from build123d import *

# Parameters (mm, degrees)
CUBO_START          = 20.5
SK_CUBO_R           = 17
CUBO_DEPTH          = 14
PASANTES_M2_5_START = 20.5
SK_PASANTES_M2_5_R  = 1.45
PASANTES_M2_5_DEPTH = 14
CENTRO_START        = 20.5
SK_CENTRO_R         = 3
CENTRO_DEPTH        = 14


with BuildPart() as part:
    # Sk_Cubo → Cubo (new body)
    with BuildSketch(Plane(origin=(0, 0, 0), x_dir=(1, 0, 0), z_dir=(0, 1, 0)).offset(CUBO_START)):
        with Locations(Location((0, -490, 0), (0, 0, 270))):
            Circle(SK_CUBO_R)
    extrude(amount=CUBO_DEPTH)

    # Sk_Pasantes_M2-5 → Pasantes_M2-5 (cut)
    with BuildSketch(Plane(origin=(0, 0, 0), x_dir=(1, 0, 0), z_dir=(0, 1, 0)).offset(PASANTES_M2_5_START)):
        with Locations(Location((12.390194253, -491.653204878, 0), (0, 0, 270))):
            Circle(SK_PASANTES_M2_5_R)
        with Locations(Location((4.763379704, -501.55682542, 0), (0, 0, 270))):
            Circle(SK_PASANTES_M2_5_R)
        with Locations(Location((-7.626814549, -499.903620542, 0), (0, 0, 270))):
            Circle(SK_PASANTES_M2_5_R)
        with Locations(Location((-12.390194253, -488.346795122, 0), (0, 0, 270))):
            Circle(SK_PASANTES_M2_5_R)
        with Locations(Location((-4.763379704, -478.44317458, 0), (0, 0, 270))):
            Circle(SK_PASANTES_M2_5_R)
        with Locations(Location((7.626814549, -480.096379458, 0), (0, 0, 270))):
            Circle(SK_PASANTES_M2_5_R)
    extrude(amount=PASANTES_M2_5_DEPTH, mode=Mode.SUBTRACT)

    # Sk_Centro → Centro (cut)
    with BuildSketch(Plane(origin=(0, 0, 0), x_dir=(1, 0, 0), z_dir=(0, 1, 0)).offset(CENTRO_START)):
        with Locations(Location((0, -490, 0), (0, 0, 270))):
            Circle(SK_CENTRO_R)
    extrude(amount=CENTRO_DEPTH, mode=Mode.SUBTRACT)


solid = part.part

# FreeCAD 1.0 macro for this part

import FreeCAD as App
import Part
import Sketcher
Q = App.Units.Quantity

doc = App.newDocument("Part")
params = doc.addObject("Spreadsheet::Sheet", "Params")
for row, (alias, value) in enumerate([
    ("sketch1_diameter", "34 mm"),
    ("pad1_length", "14 mm"),
    ("sketch2_diameter", "2.9 mm"),
    ("pocket1_length", "14 mm"),
    ("sketch3_diameter", "6 mm"),
    ("pocket2_length", "14 mm"),
], start=1):
    params.set(f"A{row}", alias)
    params.set(f"B{row}", "=" + value)
    params.setAlias(f"B{row}", alias)

body = doc.addObject("PartDesign::Body", "Body")

# Sketch on XZ plane
sketch1 = body.newObject("Sketcher::SketchObject", "Sketch")
sketch1.AttachmentSupport = (doc.getObject("XZ_Plane"), [""])
sketch1.MapMode = "FlatFace"
sketch1.AttachmentOffset = App.Placement(App.Vector(0, 0, -20.5), App.Rotation())
sketch1.addGeometry(Part.Circle(App.Vector(0, 490, 0), App.Vector(0, 0, 1), 17), False)
sketch1.addConstraint([
    Sketcher.Constraint("PointOnObject", 0, 3, -2),
    Sketcher.Constraint("Diameter", 0, Q("34 mm")),
    Sketcher.Constraint("DistanceY", -1, 1, 0, 3, Q("490 mm")),
])
sketch1.setExpression("Constraints[1]", "Params.sketch1_diameter")
pad1 = body.newObject("PartDesign::Pad", "Pad")
pad1.Profile = sketch1
pad1.setExpression("Length", "Params.pad1_length")
pad1.Reversed = True

# Sketch on XZ plane
sketch2 = body.newObject("Sketcher::SketchObject", "Sketch001")
sketch2.AttachmentSupport = (doc.getObject("XZ_Plane"), [""])
sketch2.MapMode = "FlatFace"
sketch2.AttachmentOffset = App.Placement(App.Vector(0, 0, -20.5), App.Rotation())
sketch2.addGeometry([
    Part.Circle(App.Vector(12.4, 491.7, 0), App.Vector(0, 0, 1), 1.4),  # 0
    Part.Circle(App.Vector(4.8, 501.6, 0), App.Vector(0, 0, 1), 1.4),  # 1
    Part.Circle(App.Vector(-7.6, 499.9, 0), App.Vector(0, 0, 1), 1.4),  # 2
    Part.Circle(App.Vector(-12.4, 488.3, 0), App.Vector(0, 0, 1), 1.4),  # 3
    Part.Circle(App.Vector(-4.8, 478.4, 0), App.Vector(0, 0, 1), 1.4),  # 4
    Part.Circle(App.Vector(7.6, 480.1, 0), App.Vector(0, 0, 1), 1.4),  # 5
], False)
sketch2.addConstraint([
    Sketcher.Constraint("Equal", 0, 1),
    Sketcher.Constraint("Equal", 1, 2),
    Sketcher.Constraint("Equal", 2, 3),
    Sketcher.Constraint("Equal", 3, 4),
    Sketcher.Constraint("Equal", 4, 5),
    Sketcher.Constraint("Diameter", 0, Q("2.9 mm")),
    Sketcher.Constraint("DistanceX", -1, 1, 1, 3, Q("4.76338 mm")),
    Sketcher.Constraint("DistanceY", -1, 1, 2, 3, Q("499.903621 mm")),
    Sketcher.Constraint("DistanceX", 4, 3, -1, 1, Q("4.76338 mm")),
    Sketcher.Constraint("DistanceY", -1, 1, 5, 3, Q("480.096379 mm")),
    Sketcher.Constraint("DistanceY", 0, 3, 1, 3, Q("9.903621 mm")),
    Sketcher.Constraint("DistanceX", 2, 3, 0, 3, Q("20.017009 mm")),
    Sketcher.Constraint("DistanceX", 3, 3, 2, 3, Q("4.76338 mm")),
    Sketcher.Constraint("DistanceY", 3, 3, 1, 3, Q("13.21003 mm")),
    Sketcher.Constraint("DistanceY", 4, 3, 3, 3, Q("9.903621 mm")),
    Sketcher.Constraint("DistanceX", 5, 3, 0, 3, Q("4.76338 mm")),
    Sketcher.Constraint("DistanceX", -1, 1, 0, 3, Q("12.390194 mm")),
    Sketcher.Constraint("DistanceY", -1, 1, 0, 3, Q("491.653205 mm")),
])
sketch2.setExpression("Constraints[5]", "Params.sketch2_diameter")
pocket1 = body.newObject("PartDesign::Pocket", "Pocket")
pocket1.Profile = sketch2
pocket1.setExpression("Length", "Params.pocket1_length")

# Sketch on XZ plane
sketch3 = body.newObject("Sketcher::SketchObject", "Sketch002")
sketch3.AttachmentSupport = (doc.getObject("XZ_Plane"), [""])
sketch3.MapMode = "FlatFace"
sketch3.AttachmentOffset = App.Placement(App.Vector(0, 0, -20.5), App.Rotation())
sketch3.addGeometry(Part.Circle(App.Vector(0, 490, 0), App.Vector(0, 0, 1), 3), False)
sketch3.addConstraint([
    Sketcher.Constraint("PointOnObject", 0, 3, -2),
    Sketcher.Constraint("Diameter", 0, Q("6 mm")),
    Sketcher.Constraint("DistanceY", -1, 1, 0, 3, Q("490 mm")),
])
sketch3.setExpression("Constraints[1]", "Params.sketch3_diameter")
pocket2 = body.newObject("PartDesign::Pocket", "Pocket001")
pocket2.Profile = sketch3
pocket2.setExpression("Length", "Params.pocket2_length")

doc.recompute()
